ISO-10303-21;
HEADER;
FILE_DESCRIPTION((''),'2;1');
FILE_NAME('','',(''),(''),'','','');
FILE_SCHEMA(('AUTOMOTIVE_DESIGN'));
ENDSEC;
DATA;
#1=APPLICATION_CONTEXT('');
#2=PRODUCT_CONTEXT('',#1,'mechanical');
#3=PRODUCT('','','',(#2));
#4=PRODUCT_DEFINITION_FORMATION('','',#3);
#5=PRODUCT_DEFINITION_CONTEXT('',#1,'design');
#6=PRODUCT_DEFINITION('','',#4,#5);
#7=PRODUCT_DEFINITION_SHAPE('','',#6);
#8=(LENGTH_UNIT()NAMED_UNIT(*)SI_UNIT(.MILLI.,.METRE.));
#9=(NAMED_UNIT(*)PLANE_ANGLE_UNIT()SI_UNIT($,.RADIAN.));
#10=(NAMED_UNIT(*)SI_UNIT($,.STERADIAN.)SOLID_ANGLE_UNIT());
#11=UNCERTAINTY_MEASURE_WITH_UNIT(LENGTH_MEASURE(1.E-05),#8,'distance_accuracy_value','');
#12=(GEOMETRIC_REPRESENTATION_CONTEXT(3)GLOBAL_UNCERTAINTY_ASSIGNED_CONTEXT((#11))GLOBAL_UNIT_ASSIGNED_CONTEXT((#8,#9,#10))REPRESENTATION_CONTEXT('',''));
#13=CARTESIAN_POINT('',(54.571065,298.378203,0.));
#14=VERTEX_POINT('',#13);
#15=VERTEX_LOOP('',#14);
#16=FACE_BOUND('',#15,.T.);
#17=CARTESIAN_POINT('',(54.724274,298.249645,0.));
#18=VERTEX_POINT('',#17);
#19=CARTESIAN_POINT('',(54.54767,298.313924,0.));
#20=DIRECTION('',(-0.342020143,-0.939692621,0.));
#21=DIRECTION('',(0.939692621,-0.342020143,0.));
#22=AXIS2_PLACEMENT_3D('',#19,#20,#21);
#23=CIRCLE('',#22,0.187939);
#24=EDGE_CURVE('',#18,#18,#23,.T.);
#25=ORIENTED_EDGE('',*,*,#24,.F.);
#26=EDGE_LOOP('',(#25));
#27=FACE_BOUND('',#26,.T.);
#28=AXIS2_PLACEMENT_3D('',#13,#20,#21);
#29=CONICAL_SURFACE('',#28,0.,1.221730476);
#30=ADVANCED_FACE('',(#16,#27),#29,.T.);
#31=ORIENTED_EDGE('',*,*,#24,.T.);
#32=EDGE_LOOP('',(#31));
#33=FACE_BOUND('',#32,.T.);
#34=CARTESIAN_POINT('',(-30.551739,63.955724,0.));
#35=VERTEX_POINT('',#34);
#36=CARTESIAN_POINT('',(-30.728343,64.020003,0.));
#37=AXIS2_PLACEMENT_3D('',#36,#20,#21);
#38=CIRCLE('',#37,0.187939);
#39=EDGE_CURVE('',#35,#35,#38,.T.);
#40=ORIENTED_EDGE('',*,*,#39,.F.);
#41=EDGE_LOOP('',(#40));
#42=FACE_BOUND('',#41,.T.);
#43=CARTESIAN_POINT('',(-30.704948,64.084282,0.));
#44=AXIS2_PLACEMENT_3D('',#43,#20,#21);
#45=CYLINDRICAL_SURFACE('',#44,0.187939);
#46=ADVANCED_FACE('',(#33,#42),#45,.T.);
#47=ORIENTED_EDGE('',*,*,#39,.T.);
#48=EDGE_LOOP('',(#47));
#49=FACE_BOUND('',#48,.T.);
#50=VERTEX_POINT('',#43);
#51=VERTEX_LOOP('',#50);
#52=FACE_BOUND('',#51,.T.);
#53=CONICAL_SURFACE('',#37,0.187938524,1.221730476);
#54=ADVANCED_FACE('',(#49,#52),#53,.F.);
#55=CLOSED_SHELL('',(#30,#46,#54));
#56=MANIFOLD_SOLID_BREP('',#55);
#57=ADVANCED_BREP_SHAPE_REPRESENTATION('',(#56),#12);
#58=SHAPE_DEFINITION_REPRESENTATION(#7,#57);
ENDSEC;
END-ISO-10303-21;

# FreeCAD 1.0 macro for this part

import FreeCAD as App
import Part
import Sketcher
from FreeCAD import Vector
Q = App.Units.Quantity


def add_polygon(sketch, points):
    """Adds a closed chain of lines whose ends are joined by coincident constraints."""
    first, n = sketch.GeometryCount, len(points)
    for a, b in zip(points, points[1:] + points[:1]):
        sketch.addGeometry(Part.LineSegment(App.Vector(*a, 0), App.Vector(*b, 0)), False)
    for i in range(n):
        sketch.addConstraint(Sketcher.Constraint("Coincident", first + i, 2, first + (i + 1) % n, 1))

doc = App.newDocument("Part")
params = doc.addObject("Spreadsheet::Sheet", "Params")
for row, (alias, value) in enumerate([
    ("sketch1_width", "0.2 mm"),
    ("revolution_angle", "360 deg"),
], start=1):
    params.set(f"A{row}", alias)
    params.set(f"B{row}", "=" + value)
    params.setAlias(f"B{row}", alias)

body = doc.addObject("PartDesign::Body", "Body")

sketch1 = doc.addObject("Sketcher::SketchObject", "Sketch")
body.addObject(sketch1)
sketch1.AttachmentSupport = (doc.XY_Plane, [""])
sketch1.MapMode = "FlatFace"
add_polygon(sketch1, [(54.37, 298.38), (-30.9, 64.08), (-30.7, 64.08), (54.57, 298.38)])
sketch1.addGeometry(Part.LineSegment(Vector(-30.73, 64.02, 0), Vector(54.57, 298.38, 0)), True)
sketch1.addConstraint([
    Sketcher.Constraint("Horizontal", 1),
    Sketcher.Constraint("Horizontal", 3),
    Sketcher.Constraint("Coincident", 4, 2, 2, 2),
    Sketcher.Constraint("Parallel", 0, 2),
    Sketcher.Constraint("Parallel", 2, 4),
    Sketcher.Constraint("Angle", 0, Q("-110 deg")),
    Sketcher.Constraint("DistanceX", 1, 1, 1, 2, 0.2),
    Sketcher.Constraint("DistanceY", 4, 1, 3, 2, 234.3582),
    Sketcher.Constraint("DistanceY", -1, 1, 0, 2, 64.084282),
    Sketcher.Constraint("DistanceY", 1, 2, 2, 2, 234.293921),
    Sketcher.Constraint("DistanceX", 0, 2, -1, 1, 30.904948),
])
sketch1.setExpression("Constraints[10]", "Params.sketch1_width")
revolution = doc.addObject("PartDesign::Revolution", "Revolution")
body.addObject(revolution)
revolution.Profile = sketch1
revolution.ReferenceAxis = (sketch1, ["Axis0"])
revolution.setExpression("Angle", "Params.revolution_angle")

doc.recompute()
